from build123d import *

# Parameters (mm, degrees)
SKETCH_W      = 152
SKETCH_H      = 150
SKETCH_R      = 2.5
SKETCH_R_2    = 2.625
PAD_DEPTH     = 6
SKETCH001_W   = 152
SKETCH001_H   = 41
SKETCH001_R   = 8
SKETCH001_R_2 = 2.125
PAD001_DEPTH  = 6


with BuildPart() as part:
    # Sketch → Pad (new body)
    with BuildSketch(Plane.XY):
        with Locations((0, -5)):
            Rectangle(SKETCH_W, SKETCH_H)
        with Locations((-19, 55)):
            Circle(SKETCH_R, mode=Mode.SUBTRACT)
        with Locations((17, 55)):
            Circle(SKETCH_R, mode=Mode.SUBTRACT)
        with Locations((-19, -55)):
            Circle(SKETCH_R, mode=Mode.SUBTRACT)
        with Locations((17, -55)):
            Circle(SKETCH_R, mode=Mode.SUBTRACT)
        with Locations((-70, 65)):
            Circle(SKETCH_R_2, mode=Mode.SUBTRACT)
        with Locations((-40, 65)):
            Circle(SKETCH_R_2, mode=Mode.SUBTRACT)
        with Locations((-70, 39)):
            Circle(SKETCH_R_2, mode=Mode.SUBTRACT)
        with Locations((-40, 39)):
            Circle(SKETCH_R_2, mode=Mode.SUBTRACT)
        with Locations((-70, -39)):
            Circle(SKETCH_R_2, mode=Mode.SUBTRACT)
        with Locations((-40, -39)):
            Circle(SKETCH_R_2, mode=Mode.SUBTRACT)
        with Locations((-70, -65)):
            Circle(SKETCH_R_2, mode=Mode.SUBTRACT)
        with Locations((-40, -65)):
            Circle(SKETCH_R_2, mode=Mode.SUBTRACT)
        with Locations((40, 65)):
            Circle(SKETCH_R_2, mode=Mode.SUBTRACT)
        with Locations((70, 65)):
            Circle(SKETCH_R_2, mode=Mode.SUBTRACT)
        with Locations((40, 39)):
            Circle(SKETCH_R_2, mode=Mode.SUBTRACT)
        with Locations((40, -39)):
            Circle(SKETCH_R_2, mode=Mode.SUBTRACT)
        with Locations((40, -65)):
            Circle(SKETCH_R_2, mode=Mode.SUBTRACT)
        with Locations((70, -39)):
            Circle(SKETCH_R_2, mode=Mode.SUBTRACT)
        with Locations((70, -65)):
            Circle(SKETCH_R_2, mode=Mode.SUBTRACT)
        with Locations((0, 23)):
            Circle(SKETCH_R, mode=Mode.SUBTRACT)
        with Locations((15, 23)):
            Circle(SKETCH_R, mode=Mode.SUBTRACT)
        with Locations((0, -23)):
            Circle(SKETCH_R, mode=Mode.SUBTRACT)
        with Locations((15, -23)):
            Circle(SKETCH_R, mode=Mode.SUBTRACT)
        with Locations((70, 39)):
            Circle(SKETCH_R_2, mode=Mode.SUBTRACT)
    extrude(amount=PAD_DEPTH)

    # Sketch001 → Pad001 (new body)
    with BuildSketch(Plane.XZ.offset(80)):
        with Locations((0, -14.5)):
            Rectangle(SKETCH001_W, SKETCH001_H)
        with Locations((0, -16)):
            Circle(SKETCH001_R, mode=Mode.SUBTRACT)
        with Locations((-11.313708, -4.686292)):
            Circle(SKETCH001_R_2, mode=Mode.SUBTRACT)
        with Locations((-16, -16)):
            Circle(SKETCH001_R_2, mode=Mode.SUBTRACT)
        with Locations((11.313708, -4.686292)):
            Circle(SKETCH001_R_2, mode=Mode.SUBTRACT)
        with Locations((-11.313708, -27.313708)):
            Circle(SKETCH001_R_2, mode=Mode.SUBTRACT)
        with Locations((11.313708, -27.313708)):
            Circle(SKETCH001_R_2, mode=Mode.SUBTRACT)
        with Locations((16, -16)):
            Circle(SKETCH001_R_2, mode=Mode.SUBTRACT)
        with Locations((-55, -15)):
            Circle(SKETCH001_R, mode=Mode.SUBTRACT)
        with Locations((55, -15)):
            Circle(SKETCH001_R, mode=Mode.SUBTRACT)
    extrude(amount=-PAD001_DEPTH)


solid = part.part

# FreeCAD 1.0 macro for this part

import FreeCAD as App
import Part
import Sketcher

V = App.Vector
Q = App.Units.Quantity


def add_polygon(sketch, points):
    """Adds a closed chain of lines whose ends are joined by coincident constraints."""
    first, n = sketch.GeometryCount, len(points)
    for a, b in zip(points, points[1:] + points[:1]):
        sketch.addGeometry(Part.LineSegment(App.Vector(*a, 0), App.Vector(*b, 0)), False)
    for i in range(n):
        sketch.addConstraint(Sketcher.Constraint("Coincident", first + i, 2, first + (i + 1) % n, 1))

doc = App.newDocument("Part")
body = doc.addObject("PartDesign::Body", "Body")

# Sketch on XY plane
sketch1 = body.newObject("Sketcher::SketchObject", "Sketch")
sketch1.AttachmentSupport = (doc.getObject("XY_Plane"), [""])
sketch1.MapMode = "FlatFace"
add_polygon(sketch1, [(-76, 70), (-76, -80), (76, -80), (76, 70)])  # lines 0-3
sketch1.addGeometry(Part.Circle(V(-70, -65, 0), V(0, 0, 1), 2.6), False)  # 4
sketch1.addGeometry(Part.Circle(V(-40, -65, 0), V(0, 0, 1), 2.6), False)  # 5
sketch1.addGeometry(Part.Circle(V(-70, -39, 0), V(0, 0, 1), 2.6), False)  # 6
sketch1.addGeometry(Part.Circle(V(-40, -39, 0), V(0, 0, 1), 2.6), False)  # 7
sketch1.addGeometry(Part.Circle(V(-19, -55, 0), V(0, 0, 1), 2.5), False)  # 8
sketch1.addGeometry(Part.Circle(V(17, -55, 0), V(0, 0, 1), 2.5), False)  # 9
sketch1.addGeometry(Part.Circle(V(40, -65, 0), V(0, 0, 1), 2.6), False)  # 10
sketch1.addGeometry(Part.Circle(V(70, -65, 0), V(0, 0, 1), 2.6), False)  # 11
sketch1.addGeometry(Part.Circle(V(40, -39, 0), V(0, 0, 1), 2.6), False)  # 12
sketch1.addGeometry(Part.Circle(V(70, -39, 0), V(0, 0, 1), 2.6), False)  # 13
sketch1.addGeometry(Part.Circle(V(0, -23, 0), V(0, 0, 1), 2.5), False)  # 14
sketch1.addGeometry(Part.Circle(V(15, -23, 0), V(0, 0, 1), 2.5), False)  # 15
sketch1.addGeometry(Part.Circle(V(-70, 39, 0), V(0, 0, 1), 2.6), False)  # 16
sketch1.addGeometry(Part.Circle(V(-40, 39, 0), V(0, 0, 1), 2.6), False)  # 17
sketch1.addGeometry(Part.Circle(V(-70, 65, 0), V(0, 0, 1), 2.6), False)  # 18
sketch1.addGeometry(Part.Circle(V(-40, 65, 0), V(0, 0, 1), 2.6), False)  # 19
sketch1.addGeometry(Part.Circle(V(-19, 55, 0), V(0, 0, 1), 2.5), False)  # 20
sketch1.addGeometry(Part.Circle(V(0, 23, 0), V(0, 0, 1), 2.5), False)  # 21
sketch1.addGeometry(Part.Circle(V(15, 23, 0), V(0, 0, 1), 2.5), False)  # 22
sketch1.addGeometry(Part.Circle(V(17, 55, 0), V(0, 0, 1), 2.5), False)  # 23
sketch1.addGeometry(Part.Circle(V(40, 39, 0), V(0, 0, 1), 2.6), False)  # 24
sketch1.addGeometry(Part.Circle(V(70, 39, 0), V(0, 0, 1), 2.6), False)  # 25
sketch1.addGeometry(Part.Circle(V(40, 65, 0), V(0, 0, 1), 2.6), False)  # 26
sketch1.addGeometry(Part.Circle(V(70, 65, 0), V(0, 0, 1), 2.6), False)  # 27
sketch1.addConstraint(Sketcher.Constraint("Vertical", 0))
sketch1.addConstraint(Sketcher.Constraint("Horizontal", 1))
sketch1.addConstraint(Sketcher.Constraint("Vertical", 2))
sketch1.addConstraint(Sketcher.Constraint("Horizontal", 3))
sketch1.addConstraint(Sketcher.Constraint("Equal", 4, 5))
sketch1.addConstraint(Sketcher.Constraint("Equal", 5, 6))
sketch1.addConstraint(Sketcher.Constraint("Equal", 6, 7))
sketch1.addConstraint(Sketcher.Constraint("Equal", 8, 9))
sketch1.addConstraint(Sketcher.Constraint("Equal", 7, 10))
sketch1.addConstraint(Sketcher.Constraint("Equal", 10, 11))
sketch1.addConstraint(Sketcher.Constraint("Equal", 11, 12))
sketch1.addConstraint(Sketcher.Constraint("Equal", 12, 13))
sketch1.addConstraint(Sketcher.Constraint("Equal", 9, 14))
sketch1.addConstraint(Sketcher.Constraint("Equal", 14, 15))
sketch1.addConstraint(Sketcher.Constraint("Equal", 13, 16))
sketch1.addConstraint(Sketcher.Constraint("Equal", 16, 17))
sketch1.addConstraint(Sketcher.Constraint("Equal", 17, 18))
sketch1.addConstraint(Sketcher.Constraint("Equal", 18, 19))
sketch1.addConstraint(Sketcher.Constraint("Equal", 15, 20))
sketch1.addConstraint(Sketcher.Constraint("Equal", 20, 21))
sketch1.addConstraint(Sketcher.Constraint("Equal", 21, 22))
sketch1.addConstraint(Sketcher.Constraint("Equal", 22, 23))
sketch1.addConstraint(Sketcher.Constraint("Equal", 19, 24))
sketch1.addConstraint(Sketcher.Constraint("Equal", 24, 25))
sketch1.addConstraint(Sketcher.Constraint("Equal", 25, 26))
sketch1.addConstraint(Sketcher.Constraint("Equal", 26, 27))
sketch1.addConstraint(Sketcher.Constraint("Symmetric", 13, 3, 16, 3, -1, 1))
sketch1.addConstraint(Sketcher.Constraint("Symmetric", 12, 3, 17, 3, -1, 1))
sketch1.addConstraint(Sketcher.Constraint("Symmetric", 11, 3, 18, 3, -1, 1))
sketch1.addConstraint(Sketcher.Constraint("Symmetric", 10, 3, 19, 3, -1, 1))
sketch1.addConstraint(Sketcher.Constraint("Symmetric", 14, 3, 21, 3, -1, 1))
sketch1.addConstraint(Sketcher.Constraint("Symmetric", 7, 3, 24, 3, -1, 1))
sketch1.addConstraint(Sketcher.Constraint("Symmetric", 6, 3, 25, 3, -1, 1))
sketch1.addConstraint(Sketcher.Constraint("Symmetric", 5, 3, 26, 3, -1, 1))
sketch1.addConstraint(Sketcher.Constraint("Symmetric", 4, 3, 27, 3, -1, 1))
sketch1.addConstraint(Sketcher.Constraint("Symmetric", 5, 3, 10, 3, -2))
sketch1.addConstraint(Sketcher.Constraint("Symmetric", 4, 3, 11, 3, -2))
sketch1.addConstraint(Sketcher.Constraint("Symmetric", 7, 3, 12, 3, -2))
sketch1.addConstraint(Sketcher.Constraint("Symmetric", 6, 3, 13, 3, -2))
sketch1.addConstraint(Sketcher.Constraint("Symmetric", 8, 3, 20, 3, -1))
sketch1.addConstraint(Sketcher.Constraint("Symmetric", 15, 3, 22, 3, -1))
sketch1.addConstraint(Sketcher.Constraint("Symmetric", 9, 3, 23, 3, -1))
sketch1.addConstraint(Sketcher.Constraint("PointOnObject", 14, 3, -2))
sketch1.addConstraint(Sketcher.Constraint("Horizontal", 4, 3, 5, 3))
sketch1.addConstraint(Sketcher.Constraint("Horizontal", 6, 3, 7, 3))
sketch1.addConstraint(Sketcher.Constraint("Horizontal", 8, 3, 9, 3))
sketch1.addConstraint(Sketcher.Constraint("Horizontal", 14, 3, 15, 3))
sketch1.addConstraint(Sketcher.Constraint("Vertical", 4, 3, 6, 3))
sketch1.addConstraint(Sketcher.Constraint("Vertical", 5, 3, 7, 3))
sketch1.addConstraint(Sketcher.Constraint("Diameter", 8, Q("5 mm")))
sketch1.addConstraint(Sketcher.Constraint("Diameter", 4, Q("5.25 mm")))
sketch1.addConstraint(Sketcher.Constraint("DistanceX", 1, 1, 1, 2, Q("152 mm")))
sketch1.addConstraint(Sketcher.Constraint("DistanceY", 0, 2, 0, 1, Q("150 mm")))
sketch1.addConstraint(Sketcher.Constraint("DistanceX", 4, 3, -1, 1, Q("70 mm")))
sketch1.addConstraint(Sketcher.Constraint("DistanceY", 4, 3, -1, 1, Q("65 mm")))
sketch1.addConstraint(Sketcher.Constraint("DistanceX", 5, 3, -1, 1, Q("40 mm")))
sketch1.addConstraint(Sketcher.Constraint("DistanceY", 6, 3, -1, 1, Q("39 mm")))
sketch1.addConstraint(Sketcher.Constraint("DistanceX", 8, 3, -1, 1, Q("19 mm")))
sketch1.addConstraint(Sketcher.Constraint("DistanceY", 8, 3, -1, 1, Q("55 mm")))
sketch1.addConstraint(Sketcher.Constraint("DistanceX", -1, 1, 9, 3, Q("17 mm")))
sketch1.addConstraint(Sketcher.Constraint("DistanceY", 14, 3, -1, 1, Q("23 mm")))
sketch1.addConstraint(Sketcher.Constraint("DistanceX", -1, 1, 15, 3, Q("15 mm")))
sketch1.addConstraint(Sketcher.Constraint("DistanceX", 0, 2, -1, 1, Q("76 mm")))
sketch1.addConstraint(Sketcher.Constraint("DistanceY", 0, 2, -1, 1, Q("80 mm")))
pad1 = body.newObject("PartDesign::Pad", "Pad")
pad1.Profile = sketch1
pad1.Length = 6

# Sketch on XZ plane
sketch2 = body.newObject("Sketcher::SketchObject", "Sketch001")
sketch2.AttachmentSupport = (doc.getObject("XZ_Plane"), [""])
sketch2.MapMode = "FlatFace"
sketch2.AttachmentOffset = App.Placement(V(0, 0, 80), App.Rotation())
add_polygon(sketch2, [(-76, 6), (-76, -35), (76, -35), (76, 6)])  # lines 0-3
sketch2.addGeometry(Part.Circle(V(-11.3, -27.3, 0), V(0, 0, 1), 2.1), False)  # 4
sketch2.addGeometry(Part.Circle(V(11.3, -27.3, 0), V(0, 0, 1), 2.1), False)  # 5
sketch2.addGeometry(Part.Circle(V(-55, -15, 0), V(0, 0, 1), 8), False)  # 6
sketch2.addGeometry(Part.Circle(V(-16, -16, 0), V(0, 0, 1), 2.1), False)  # 7
sketch2.addGeometry(Part.Circle(V(-11.3, -4.7, 0), V(0, 0, 1), 2.1), False)  # 8
sketch2.addGeometry(Part.Circle(V(0, -16, 0), V(0, 0, 1), 8), False)  # 9
sketch2.addGeometry(Part.Circle(V(16, -16, 0), V(0, 0, 1), 2.1), False)  # 10
sketch2.addGeometry(Part.Circle(V(55, -15, 0), V(0, 0, 1), 8), False)  # 11
sketch2.addGeometry(Part.Circle(V(11.3, -4.7, 0), V(0, 0, 1), 2.1), False)  # 12
sketch2.addConstraint(Sketcher.Constraint("Vertical", 0))
sketch2.addConstraint(Sketcher.Constraint("Horizontal", 1))
sketch2.addConstraint(Sketcher.Constraint("Vertical", 2))
sketch2.addConstraint(Sketcher.Constraint("Horizontal", 3))
sketch2.addConstraint(Sketcher.Constraint("Equal", 4, 5))
sketch2.addConstraint(Sketcher.Constraint("Equal", 5, 7))
sketch2.addConstraint(Sketcher.Constraint("Equal", 7, 8))
sketch2.addConstraint(Sketcher.Constraint("Equal", 6, 9))
sketch2.addConstraint(Sketcher.Constraint("Equal", 8, 10))
sketch2.addConstraint(Sketcher.Constraint("Equal", 9, 11))
sketch2.addConstraint(Sketcher.Constraint("Equal", 10, 12))
sketch2.addConstraint(Sketcher.Constraint("Symmetric", 4, 3, 5, 3, -2))
sketch2.addConstraint(Sketcher.Constraint("Symmetric", 7, 3, 10, 3, -2))
sketch2.addConstraint(Sketcher.Constraint("Symmetric", 6, 3, 11, 3, -2))
sketch2.addConstraint(Sketcher.Constraint("Symmetric", 8, 3, 12, 3, -2))
sketch2.addConstraint(Sketcher.Constraint("PointOnObject", 9, 3, -2))
sketch2.addConstraint(Sketcher.Constraint("Horizontal", 7, 3, 9, 3))
sketch2.addConstraint(Sketcher.Constraint("Vertical", 4, 3, 8, 3))
sketch2.addConstraint(Sketcher.Constraint("Diameter", 6, Q("16 mm")))
sketch2.addConstraint(Sketcher.Constraint("Diameter", 4, Q("4.25 mm")))
sketch2.addConstraint(Sketcher.Constraint("DistanceX", 1, 1, 1, 2, Q("152 mm")))
sketch2.addConstraint(Sketcher.Constraint("DistanceY", 0, 2, 0, 1, Q("41 mm")))
sketch2.addConstraint(Sketcher.Constraint("DistanceX", 6, 3, -1, 1, Q("55 mm")))
sketch2.addConstraint(Sketcher.Constraint("DistanceY", 6, 3, -1, 1, Q("15 mm")))
sketch2.addConstraint(Sketcher.Constraint("DistanceX", 7, 3, -1, 1, Q("16 mm")))
sketch2.addConstraint(Sketcher.Constraint("DistanceY", 7, 3, -1, 1, Q("16 mm")))
sketch2.addConstraint(Sketcher.Constraint("DistanceX", 0, 2, -1, 1, Q("76 mm")))
sketch2.addConstraint(Sketcher.Constraint("DistanceY", 0, 2, -1, 1, Q("35 mm")))
sketch2.addConstraint(Sketcher.Constraint("DistanceX", 6, 3, 5, 3, Q("66.313708 mm")))
sketch2.addConstraint(Sketcher.Constraint("DistanceY", 4, 3, -1, 1, Q("27.313708 mm")))
sketch2.addConstraint(Sketcher.Constraint("DistanceY", 8, 3, -1, 1, Q("4.686292 mm")))
pad2 = body.newObject("PartDesign::Pad", "Pad001")
pad2.Profile = sketch2
pad2.Length = 6
pad2.Reversed = True

doc.recompute()
